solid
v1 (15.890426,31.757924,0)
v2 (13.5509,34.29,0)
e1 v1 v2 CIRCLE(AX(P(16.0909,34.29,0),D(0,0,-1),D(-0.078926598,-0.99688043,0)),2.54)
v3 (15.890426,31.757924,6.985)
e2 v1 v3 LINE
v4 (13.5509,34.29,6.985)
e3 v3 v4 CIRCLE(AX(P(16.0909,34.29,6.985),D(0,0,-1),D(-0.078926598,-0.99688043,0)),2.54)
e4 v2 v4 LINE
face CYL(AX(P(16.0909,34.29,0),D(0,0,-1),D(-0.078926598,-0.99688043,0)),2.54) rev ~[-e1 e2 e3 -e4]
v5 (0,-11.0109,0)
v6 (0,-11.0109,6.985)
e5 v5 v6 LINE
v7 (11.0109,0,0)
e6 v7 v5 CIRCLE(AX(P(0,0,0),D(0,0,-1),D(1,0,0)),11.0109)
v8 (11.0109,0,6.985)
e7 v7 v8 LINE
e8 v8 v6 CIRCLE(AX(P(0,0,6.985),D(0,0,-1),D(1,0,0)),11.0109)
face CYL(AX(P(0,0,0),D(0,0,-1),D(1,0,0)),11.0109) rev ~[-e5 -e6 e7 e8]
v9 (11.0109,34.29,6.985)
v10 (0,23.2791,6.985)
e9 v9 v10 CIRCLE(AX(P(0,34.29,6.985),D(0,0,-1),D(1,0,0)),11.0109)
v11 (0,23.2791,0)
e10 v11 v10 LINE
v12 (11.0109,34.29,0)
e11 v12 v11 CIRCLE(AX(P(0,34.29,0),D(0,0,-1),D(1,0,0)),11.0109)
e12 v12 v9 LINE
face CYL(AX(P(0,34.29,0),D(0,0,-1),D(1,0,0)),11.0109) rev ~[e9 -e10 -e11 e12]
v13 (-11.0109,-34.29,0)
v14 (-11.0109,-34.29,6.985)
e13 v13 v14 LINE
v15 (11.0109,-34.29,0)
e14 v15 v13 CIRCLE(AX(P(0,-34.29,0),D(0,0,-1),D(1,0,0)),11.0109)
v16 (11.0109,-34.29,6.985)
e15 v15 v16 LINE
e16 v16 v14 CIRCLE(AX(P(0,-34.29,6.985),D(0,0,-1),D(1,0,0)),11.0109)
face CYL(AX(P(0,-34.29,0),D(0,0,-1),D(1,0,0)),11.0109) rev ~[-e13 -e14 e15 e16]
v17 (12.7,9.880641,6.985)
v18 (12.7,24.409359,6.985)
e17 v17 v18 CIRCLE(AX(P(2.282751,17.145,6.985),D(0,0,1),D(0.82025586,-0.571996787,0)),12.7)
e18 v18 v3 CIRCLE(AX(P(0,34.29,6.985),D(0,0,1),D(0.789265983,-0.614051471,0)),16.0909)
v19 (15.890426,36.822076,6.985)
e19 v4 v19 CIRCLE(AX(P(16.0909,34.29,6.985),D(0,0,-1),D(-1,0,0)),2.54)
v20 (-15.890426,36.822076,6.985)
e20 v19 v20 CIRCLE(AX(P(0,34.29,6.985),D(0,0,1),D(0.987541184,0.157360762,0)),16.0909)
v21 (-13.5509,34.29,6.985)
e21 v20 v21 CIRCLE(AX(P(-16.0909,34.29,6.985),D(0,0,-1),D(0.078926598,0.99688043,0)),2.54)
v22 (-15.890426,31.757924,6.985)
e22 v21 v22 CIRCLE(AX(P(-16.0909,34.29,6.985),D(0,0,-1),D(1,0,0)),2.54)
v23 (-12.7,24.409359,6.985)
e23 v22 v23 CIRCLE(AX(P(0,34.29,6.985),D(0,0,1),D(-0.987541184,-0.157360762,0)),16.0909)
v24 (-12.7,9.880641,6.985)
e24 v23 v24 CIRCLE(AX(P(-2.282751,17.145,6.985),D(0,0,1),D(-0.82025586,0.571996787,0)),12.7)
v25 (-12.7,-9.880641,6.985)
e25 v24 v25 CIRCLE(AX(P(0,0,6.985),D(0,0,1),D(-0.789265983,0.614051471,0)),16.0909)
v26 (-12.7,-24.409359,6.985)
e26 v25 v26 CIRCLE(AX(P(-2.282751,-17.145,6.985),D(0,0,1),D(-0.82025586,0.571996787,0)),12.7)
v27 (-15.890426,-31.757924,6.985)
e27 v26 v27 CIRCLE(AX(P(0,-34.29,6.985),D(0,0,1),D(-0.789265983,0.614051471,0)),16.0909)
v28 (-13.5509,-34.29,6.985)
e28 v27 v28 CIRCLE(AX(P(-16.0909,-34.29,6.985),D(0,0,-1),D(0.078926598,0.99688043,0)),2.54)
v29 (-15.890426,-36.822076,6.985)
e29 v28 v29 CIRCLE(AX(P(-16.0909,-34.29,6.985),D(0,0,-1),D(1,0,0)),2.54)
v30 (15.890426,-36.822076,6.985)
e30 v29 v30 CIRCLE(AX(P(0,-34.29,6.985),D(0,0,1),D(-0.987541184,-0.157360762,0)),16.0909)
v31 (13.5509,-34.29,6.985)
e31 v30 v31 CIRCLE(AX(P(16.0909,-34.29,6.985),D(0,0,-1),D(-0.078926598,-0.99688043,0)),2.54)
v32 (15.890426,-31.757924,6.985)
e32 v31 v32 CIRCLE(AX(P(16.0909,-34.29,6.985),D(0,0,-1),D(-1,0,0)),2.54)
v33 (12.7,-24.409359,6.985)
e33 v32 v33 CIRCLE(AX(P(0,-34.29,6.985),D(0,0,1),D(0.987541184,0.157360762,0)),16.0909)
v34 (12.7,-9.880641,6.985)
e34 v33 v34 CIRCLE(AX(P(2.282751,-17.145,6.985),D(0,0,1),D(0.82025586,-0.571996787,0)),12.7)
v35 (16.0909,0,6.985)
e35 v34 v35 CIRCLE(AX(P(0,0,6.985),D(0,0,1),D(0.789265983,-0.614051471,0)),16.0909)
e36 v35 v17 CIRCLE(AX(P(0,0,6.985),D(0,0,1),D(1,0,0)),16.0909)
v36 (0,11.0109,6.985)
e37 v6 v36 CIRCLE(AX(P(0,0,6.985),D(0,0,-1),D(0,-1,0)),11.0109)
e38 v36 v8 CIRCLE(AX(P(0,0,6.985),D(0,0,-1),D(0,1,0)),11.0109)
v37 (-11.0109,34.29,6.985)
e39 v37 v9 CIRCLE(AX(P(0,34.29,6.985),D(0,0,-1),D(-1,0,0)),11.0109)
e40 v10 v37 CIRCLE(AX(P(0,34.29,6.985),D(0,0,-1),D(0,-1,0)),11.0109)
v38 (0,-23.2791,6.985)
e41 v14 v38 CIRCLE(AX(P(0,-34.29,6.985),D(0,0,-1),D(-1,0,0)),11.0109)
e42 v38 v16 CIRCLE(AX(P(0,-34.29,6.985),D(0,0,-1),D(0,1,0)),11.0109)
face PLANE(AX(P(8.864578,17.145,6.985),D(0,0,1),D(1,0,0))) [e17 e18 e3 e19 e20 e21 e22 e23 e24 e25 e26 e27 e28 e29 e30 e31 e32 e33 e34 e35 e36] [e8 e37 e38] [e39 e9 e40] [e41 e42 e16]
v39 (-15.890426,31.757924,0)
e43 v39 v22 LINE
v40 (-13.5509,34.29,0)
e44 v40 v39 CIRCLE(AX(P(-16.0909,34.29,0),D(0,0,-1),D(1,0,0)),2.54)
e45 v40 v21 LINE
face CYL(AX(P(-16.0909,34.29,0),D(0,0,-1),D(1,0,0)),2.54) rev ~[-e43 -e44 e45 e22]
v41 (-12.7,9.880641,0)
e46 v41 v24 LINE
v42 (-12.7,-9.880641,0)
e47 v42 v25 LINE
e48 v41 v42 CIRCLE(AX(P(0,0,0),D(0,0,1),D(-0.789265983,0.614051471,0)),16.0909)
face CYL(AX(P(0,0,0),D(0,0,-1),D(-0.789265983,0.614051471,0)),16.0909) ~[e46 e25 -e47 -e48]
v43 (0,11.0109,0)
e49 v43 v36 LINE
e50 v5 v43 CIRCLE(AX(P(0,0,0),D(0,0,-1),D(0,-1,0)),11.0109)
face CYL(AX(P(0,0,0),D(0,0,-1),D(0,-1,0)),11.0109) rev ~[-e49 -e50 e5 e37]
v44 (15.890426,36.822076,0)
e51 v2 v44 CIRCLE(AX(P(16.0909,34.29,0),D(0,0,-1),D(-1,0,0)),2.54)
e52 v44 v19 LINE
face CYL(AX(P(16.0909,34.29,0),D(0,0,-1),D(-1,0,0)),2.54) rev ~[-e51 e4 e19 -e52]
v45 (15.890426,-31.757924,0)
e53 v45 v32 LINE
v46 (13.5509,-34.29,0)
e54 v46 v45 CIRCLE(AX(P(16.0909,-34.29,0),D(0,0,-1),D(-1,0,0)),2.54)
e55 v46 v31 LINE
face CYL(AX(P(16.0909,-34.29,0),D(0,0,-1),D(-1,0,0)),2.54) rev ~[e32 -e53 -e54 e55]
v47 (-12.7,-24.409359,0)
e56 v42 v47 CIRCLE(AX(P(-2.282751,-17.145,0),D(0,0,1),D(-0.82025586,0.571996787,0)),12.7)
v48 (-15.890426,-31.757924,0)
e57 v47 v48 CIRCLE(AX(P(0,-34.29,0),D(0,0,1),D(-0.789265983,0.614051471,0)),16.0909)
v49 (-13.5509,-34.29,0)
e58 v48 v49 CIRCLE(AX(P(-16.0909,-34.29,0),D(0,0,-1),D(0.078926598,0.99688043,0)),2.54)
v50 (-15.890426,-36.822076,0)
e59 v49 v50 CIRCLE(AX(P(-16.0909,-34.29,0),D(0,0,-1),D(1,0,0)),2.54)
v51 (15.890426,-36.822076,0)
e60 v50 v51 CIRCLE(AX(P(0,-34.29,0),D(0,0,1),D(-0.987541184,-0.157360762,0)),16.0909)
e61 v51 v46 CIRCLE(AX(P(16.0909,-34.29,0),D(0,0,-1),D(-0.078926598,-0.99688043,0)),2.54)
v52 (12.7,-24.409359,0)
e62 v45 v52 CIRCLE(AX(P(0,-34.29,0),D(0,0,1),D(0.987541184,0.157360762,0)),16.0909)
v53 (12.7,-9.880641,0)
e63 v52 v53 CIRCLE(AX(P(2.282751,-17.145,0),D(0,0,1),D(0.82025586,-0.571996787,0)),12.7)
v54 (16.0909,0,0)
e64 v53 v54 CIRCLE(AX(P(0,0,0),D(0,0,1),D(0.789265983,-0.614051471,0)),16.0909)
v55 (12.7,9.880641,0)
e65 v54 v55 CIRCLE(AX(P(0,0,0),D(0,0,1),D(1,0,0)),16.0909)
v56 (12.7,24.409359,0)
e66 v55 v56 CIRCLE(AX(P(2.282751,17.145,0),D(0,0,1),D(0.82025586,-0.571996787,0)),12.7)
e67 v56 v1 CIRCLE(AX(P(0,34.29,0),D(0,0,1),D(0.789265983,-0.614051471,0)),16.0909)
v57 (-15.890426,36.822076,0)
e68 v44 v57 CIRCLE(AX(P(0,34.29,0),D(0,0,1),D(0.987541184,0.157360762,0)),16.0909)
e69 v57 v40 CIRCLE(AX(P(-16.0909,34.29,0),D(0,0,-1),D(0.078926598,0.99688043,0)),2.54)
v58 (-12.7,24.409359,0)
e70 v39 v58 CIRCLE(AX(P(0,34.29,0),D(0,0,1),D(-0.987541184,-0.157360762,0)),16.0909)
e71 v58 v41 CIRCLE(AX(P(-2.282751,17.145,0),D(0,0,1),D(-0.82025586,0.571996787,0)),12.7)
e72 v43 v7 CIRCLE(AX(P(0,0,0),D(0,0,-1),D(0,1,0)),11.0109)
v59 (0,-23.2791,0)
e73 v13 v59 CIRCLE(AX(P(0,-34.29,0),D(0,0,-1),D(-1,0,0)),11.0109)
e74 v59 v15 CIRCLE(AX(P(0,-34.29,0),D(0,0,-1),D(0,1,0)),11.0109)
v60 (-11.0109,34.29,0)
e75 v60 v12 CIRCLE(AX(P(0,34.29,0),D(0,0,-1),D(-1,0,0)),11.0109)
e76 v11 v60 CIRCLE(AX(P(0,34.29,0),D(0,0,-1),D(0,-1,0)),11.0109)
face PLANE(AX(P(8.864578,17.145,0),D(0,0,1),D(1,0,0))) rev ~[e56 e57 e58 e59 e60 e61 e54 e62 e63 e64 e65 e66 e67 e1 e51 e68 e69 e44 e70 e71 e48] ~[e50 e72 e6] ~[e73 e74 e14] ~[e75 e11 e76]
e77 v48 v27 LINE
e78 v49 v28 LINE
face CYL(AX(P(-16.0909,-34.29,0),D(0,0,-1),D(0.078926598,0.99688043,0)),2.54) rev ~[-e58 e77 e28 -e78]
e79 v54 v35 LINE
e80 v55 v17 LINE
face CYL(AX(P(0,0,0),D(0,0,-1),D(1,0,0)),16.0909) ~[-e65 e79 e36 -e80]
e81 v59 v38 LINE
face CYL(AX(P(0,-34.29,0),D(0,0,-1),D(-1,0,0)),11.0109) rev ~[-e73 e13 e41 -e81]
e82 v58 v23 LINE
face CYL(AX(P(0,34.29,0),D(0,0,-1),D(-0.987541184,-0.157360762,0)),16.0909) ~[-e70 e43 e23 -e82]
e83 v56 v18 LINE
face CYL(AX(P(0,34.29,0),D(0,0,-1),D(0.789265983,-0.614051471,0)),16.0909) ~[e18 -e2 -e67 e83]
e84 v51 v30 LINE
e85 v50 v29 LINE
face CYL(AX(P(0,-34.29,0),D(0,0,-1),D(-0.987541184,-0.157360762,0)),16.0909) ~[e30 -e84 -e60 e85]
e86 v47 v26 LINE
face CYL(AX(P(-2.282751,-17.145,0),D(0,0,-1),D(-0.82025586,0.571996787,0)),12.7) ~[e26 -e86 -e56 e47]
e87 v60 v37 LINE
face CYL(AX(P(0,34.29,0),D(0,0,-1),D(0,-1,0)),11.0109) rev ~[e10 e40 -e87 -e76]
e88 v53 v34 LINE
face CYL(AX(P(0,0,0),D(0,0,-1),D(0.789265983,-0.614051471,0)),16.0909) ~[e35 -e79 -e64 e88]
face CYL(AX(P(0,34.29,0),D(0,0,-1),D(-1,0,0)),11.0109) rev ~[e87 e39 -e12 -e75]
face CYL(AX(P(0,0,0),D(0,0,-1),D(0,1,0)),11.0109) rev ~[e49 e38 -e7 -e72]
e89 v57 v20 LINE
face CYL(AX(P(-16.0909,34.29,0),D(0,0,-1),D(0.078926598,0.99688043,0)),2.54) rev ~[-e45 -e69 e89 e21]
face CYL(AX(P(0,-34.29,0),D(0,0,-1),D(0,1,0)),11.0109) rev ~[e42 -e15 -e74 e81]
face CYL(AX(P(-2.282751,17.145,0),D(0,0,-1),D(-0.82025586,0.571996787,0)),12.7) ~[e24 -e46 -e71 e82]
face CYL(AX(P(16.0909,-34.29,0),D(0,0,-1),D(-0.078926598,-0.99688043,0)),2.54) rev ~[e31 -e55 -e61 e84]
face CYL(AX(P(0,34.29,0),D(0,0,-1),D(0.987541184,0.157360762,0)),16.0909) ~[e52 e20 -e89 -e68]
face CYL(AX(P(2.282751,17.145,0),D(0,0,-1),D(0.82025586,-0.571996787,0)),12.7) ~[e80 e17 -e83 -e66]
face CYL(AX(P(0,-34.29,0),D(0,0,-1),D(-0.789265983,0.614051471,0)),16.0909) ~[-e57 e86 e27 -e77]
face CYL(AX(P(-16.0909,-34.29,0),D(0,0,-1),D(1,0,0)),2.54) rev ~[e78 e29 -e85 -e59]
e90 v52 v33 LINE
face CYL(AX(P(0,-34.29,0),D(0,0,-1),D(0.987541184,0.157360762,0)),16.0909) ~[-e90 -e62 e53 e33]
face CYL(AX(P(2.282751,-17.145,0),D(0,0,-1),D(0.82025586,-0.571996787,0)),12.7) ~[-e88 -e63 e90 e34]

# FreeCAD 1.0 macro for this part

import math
import FreeCAD as App
import Part
import Sketcher
from FreeCAD import Vector
Q = App.Units.Quantity

doc = App.newDocument("Part")
body = doc.addObject("PartDesign::Body", "Body")

sketch1 = doc.addObject("Sketcher::SketchObject", "Sketch")
body.addObject(sketch1)
sketch1.AttachmentSupport = (doc.XY_Plane, [""])
sketch1.MapMode = "FlatFace"
sketch1.addGeometry([
    Part.ArcOfCircle(Part.Circle(Vector(2.3, 17.1, 0), Vector(0, 0, 1), 12.7), math.radians(-35), math.radians(35)),
    Part.ArcOfCircle(Part.Circle(Vector(0, 34.3, 0), Vector(0, 0, 1), 16.1), math.radians(-38), math.radians(-9)),
    Part.ArcOfCircle(Part.Circle(Vector(16.1, 34.3, 0), Vector(0, 0, 1), 2.5), math.radians(180), math.radians(265)),
    Part.ArcOfCircle(Part.Circle(Vector(16.1, 34.3, 0), Vector(0, 0, 1), 2.5), math.radians(95), math.radians(180)),
    Part.ArcOfCircle(Part.Circle(Vector(0, 34.3, 0), Vector(0, 0, 1), 16.1), math.radians(9), math.radians(171)),
    Part.ArcOfCircle(Part.Circle(Vector(-16.1, 34.3, 0), Vector(0, 0, 1), 2.5), math.radians(0), math.radians(85)),
    Part.ArcOfCircle(Part.Circle(Vector(-16.1, 34.3, 0), Vector(0, 0, 1), 2.5), math.radians(-85), math.radians(0)),
    Part.ArcOfCircle(Part.Circle(Vector(0, 34.3, 0), Vector(0, 0, 1), 16.1), math.radians(-171), math.radians(-142)),
    Part.ArcOfCircle(Part.Circle(Vector(-2.3, 17.1, 0), Vector(0, 0, 1), 12.7), math.radians(145), math.radians(215)),
    Part.ArcOfCircle(Part.Circle(Vector(0, 0, 0), Vector(0, 0, 1), 16.1), math.radians(142), math.radians(218)),
    Part.ArcOfCircle(Part.Circle(Vector(-2.3, -17.1, 0), Vector(0, 0, 1), 12.7), math.radians(145), math.radians(215)),
    Part.ArcOfCircle(Part.Circle(Vector(0, -34.3, 0), Vector(0, 0, 1), 16.1), math.radians(142), math.radians(171)),
    Part.ArcOfCircle(Part.Circle(Vector(-16.1, -34.3, 0), Vector(0, 0, 1), 2.5), math.radians(0), math.radians(85)),
    Part.ArcOfCircle(Part.Circle(Vector(-16.1, -34.3, 0), Vector(0, 0, 1), 2.5), math.radians(-85), math.radians(0)),
    Part.ArcOfCircle(Part.Circle(Vector(0, -34.3, 0), Vector(0, 0, 1), 16.1), math.radians(-171), math.radians(-9)),
    Part.ArcOfCircle(Part.Circle(Vector(16.1, -34.3, 0), Vector(0, 0, 1), 2.5), math.radians(180), math.radians(265)),
    Part.ArcOfCircle(Part.Circle(Vector(16.1, -34.3, 0), Vector(0, 0, 1), 2.5), math.radians(95), math.radians(180)),
    Part.ArcOfCircle(Part.Circle(Vector(0, -34.3, 0), Vector(0, 0, 1), 16.1), math.radians(9), math.radians(38)),
    Part.ArcOfCircle(Part.Circle(Vector(2.3, -17.1, 0), Vector(0, 0, 1), 12.7), math.radians(-35), math.radians(35)),
    Part.ArcOfCircle(Part.Circle(Vector(0, 0, 0), Vector(0, 0, 1), 16.1), math.radians(-38), math.radians(0)),
    Part.ArcOfCircle(Part.Circle(Vector(0, 0, 0), Vector(0, 0, 1), 16.1), math.radians(0), math.radians(38)),
    Part.ArcOfCircle(Part.Circle(Vector(0, -34.3, 0), Vector(0, 0, 1), 11), math.radians(90), math.radians(180)),
    Part.ArcOfCircle(Part.Circle(Vector(0, -34.3, 0), Vector(0, 0, 1), 11), math.radians(0), math.radians(90)),
    Part.ArcOfCircle(Part.Circle(Vector(0, -34.3, 0), Vector(0, 0, 1), 11), math.radians(180), math.radians(360)),
    Part.ArcOfCircle(Part.Circle(Vector(0, 34.3, 0), Vector(0, 0, 1), 11), math.radians(180), math.radians(270)),
    Part.ArcOfCircle(Part.Circle(Vector(0, 34.3, 0), Vector(0, 0, 1), 11), math.radians(0), math.radians(180)),
    Part.ArcOfCircle(Part.Circle(Vector(0, 34.3, 0), Vector(0, 0, 1), 11), math.radians(-90), math.radians(0)),
    Part.ArcOfCircle(Part.Circle(Vector(0, 0, 0), Vector(0, 0, 1), 11), math.radians(90), math.radians(270)),
    Part.ArcOfCircle(Part.Circle(Vector(0, 0, 0), Vector(0, 0, 1), 11), math.radians(0), math.radians(90)),
    Part.ArcOfCircle(Part.Circle(Vector(0, 0, 0), Vector(0, 0, 1), 11), math.radians(-90), math.radians(0)),
], False)
sketch1.addConstraint([
    Sketcher.Constraint("Coincident", 0, 2, 1, 1),
    Sketcher.Constraint("Coincident", 1, 2, 2, 2),
    Sketcher.Constraint("Tangent", 2, 1, 3, 2),
    Sketcher.Constraint("Coincident", 3, 1, 4, 1),
    Sketcher.Constraint("Coincident", 4, 2, 5, 2),
    Sketcher.Constraint("Tangent", 5, 1, 6, 2),
    Sketcher.Constraint("Coincident", 6, 1, 7, 1),
    Sketcher.Constraint("Coincident", 7, 2, 8, 1),
    Sketcher.Constraint("Coincident", 8, 2, 9, 1),
    Sketcher.Constraint("Coincident", 9, 2, 10, 1),
    Sketcher.Constraint("Coincident", 10, 2, 11, 1),
    Sketcher.Constraint("Coincident", 11, 2, 12, 2),
    Sketcher.Constraint("Tangent", 12, 1, 13, 2),
    Sketcher.Constraint("Coincident", 13, 1, 14, 1),
    Sketcher.Constraint("Coincident", 14, 2, 15, 2),
    Sketcher.Constraint("Tangent", 15, 1, 16, 2),
    Sketcher.Constraint("Coincident", 16, 1, 17, 1),
    Sketcher.Constraint("Coincident", 17, 2, 18, 1),
    Sketcher.Constraint("Coincident", 18, 2, 19, 1),
    Sketcher.Constraint("Tangent", 19, 2, 20, 1),
    Sketcher.Constraint("Coincident", 20, 2, 0, 1),
    Sketcher.Constraint("Tangent", 21, 1, 22, 2),
    Sketcher.Constraint("Tangent", 22, 1, 23, 2),
    Sketcher.Constraint("Tangent", 23, 1, 21, 2),
    Sketcher.Constraint("Tangent", 24, 1, 25, 2),
    Sketcher.Constraint("Tangent", 25, 1, 26, 2),
    Sketcher.Constraint("Tangent", 26, 1, 24, 2),
    Sketcher.Constraint("Tangent", 27, 1, 28, 2),
    Sketcher.Constraint("Tangent", 28, 1, 29, 2),
    Sketcher.Constraint("Tangent", 29, 1, 27, 2),
    Sketcher.Constraint("Coincident", 9, 3, -1, 1),
    Sketcher.Constraint("Coincident", 19, 3, -1, 1),
    Sketcher.Constraint("Coincident", 27, 3, -1, 1),
    Sketcher.Constraint("Coincident", 4, 3, 1, 3),
    Sketcher.Constraint("Coincident", 7, 3, 1, 3),
    Sketcher.Constraint("Coincident", 14, 3, 11, 3),
    Sketcher.Constraint("Coincident", 17, 3, 11, 3),
    Sketcher.Constraint("Coincident", 21, 3, 11, 3),
    Sketcher.Constraint("Coincident", 24, 3, 1, 3),
    Sketcher.Constraint("Equal", 2, 3),
    Sketcher.Constraint("Equal", 1, 4),
    Sketcher.Constraint("Equal", 3, 5),
    Sketcher.Constraint("Equal", 5, 6),
    Sketcher.Constraint("Equal", 4, 7),
    Sketcher.Constraint("Equal", 0, 8),
    Sketcher.Constraint("Equal", 7, 9),
    Sketcher.Constraint("Equal", 8, 10),
    Sketcher.Constraint("Equal", 9, 11),
    Sketcher.Constraint("Equal", 6, 12),
    Sketcher.Constraint("Equal", 12, 13),
    Sketcher.Constraint("Equal", 11, 14),
    Sketcher.Constraint("Equal", 13, 15),
    Sketcher.Constraint("Equal", 15, 16),
    Sketcher.Constraint("Equal", 14, 17),
    Sketcher.Constraint("Equal", 10, 18),
    Sketcher.Constraint("Equal", 17, 19),
    Sketcher.Constraint("Equal", 19, 20),
    Sketcher.Constraint("Equal", 23, 24),
    Sketcher.Constraint("Equal", 26, 27),
    Sketcher.Constraint("Symmetric", 0, 3, 10, 3, -1, 1),
    Sketcher.Constraint("Symmetric", 1, 3, 11, 3, -1, 1),
    Sketcher.Constraint("Symmetric", 2, 3, 12, 3, -1, 1),
    Sketcher.Constraint("Symmetric", 5, 3, 15, 3, -1, 1),
    Sketcher.Constraint("Symmetric", 8, 3, 18, 3, -1, 1),
    Sketcher.Constraint("Symmetric", 2, 3, 5, 3, -2),
    Sketcher.Constraint("Symmetric", 0, 3, 8, 3, -2),
    Sketcher.Constraint("Symmetric", 22, 1, 23, 1, -2),
    Sketcher.Constraint("PointOnObject", 19, 2, -1),
    Sketcher.Constraint("PointOnObject", 21, 1, -2),
    Sketcher.Constraint("PointOnObject", 26, 1, -2),
    Sketcher.Constraint("PointOnObject", 27, 1, -2),
    Sketcher.Constraint("PointOnObject", 28, 1, -1),
    Sketcher.Constraint("PointOnObject", 29, 1, -2),
    Sketcher.Constraint("Horizontal", 1, 3, 2, 3),
    Sketcher.Constraint("Horizontal", 26, 3, 2, 1),
    Sketcher.Constraint("Horizontal", 2, 1, 5, 1),
    Sketcher.Constraint("Horizontal", 23, 3, 12, 1),
    Sketcher.Constraint("Horizontal", 12, 1, 15, 1),
    Sketcher.Constraint("Horizontal", 15, 1, 22, 1),
    Sketcher.Constraint("Horizontal", 5, 1, 24, 1),
    Sketcher.Constraint("Horizontal", 24, 1, 25, 1),
    Sketcher.Constraint("Vertical", 7, 2, 8, 2),
    Sketcher.Constraint("Vertical", 16, 3, 19, 2),
    Sketcher.Constraint("Radius", 0, Q("0.5 in")),
    Sketcher.Constraint("Radius", 2, Q("0.1 in")),
    Sketcher.Constraint("DistanceX", -1, 1, 0, 2, Q("0.5 in")),
    Sketcher.Constraint("Radius", 1, Q("0.6335 in")),
    Sketcher.Constraint("Radius", 21, Q("0.4335 in")),
    Sketcher.Constraint("DistanceY", 11, 3, 1, 3, Q("2.7 in")),
])
pad1 = doc.addObject("PartDesign::Pad", "Pad")
body.addObject(pad1)
pad1.Profile = sketch1
pad1.Length = Q("0.275 in")

doc.recompute()
